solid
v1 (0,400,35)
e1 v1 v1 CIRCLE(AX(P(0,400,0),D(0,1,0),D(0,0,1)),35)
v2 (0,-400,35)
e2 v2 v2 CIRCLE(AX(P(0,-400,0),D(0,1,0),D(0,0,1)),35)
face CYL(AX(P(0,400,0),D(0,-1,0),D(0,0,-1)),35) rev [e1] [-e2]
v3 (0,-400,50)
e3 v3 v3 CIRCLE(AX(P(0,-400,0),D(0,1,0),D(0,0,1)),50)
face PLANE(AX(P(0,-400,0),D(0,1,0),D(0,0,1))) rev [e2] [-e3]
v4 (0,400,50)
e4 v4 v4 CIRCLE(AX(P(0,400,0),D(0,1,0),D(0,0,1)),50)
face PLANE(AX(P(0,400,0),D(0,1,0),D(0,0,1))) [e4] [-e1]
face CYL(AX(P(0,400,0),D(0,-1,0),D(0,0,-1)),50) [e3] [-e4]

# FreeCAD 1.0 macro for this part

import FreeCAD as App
import Part
import Sketcher
Q = App.Units.Quantity

doc = App.newDocument("Part")
params = doc.addObject("Spreadsheet::Sheet", "Params")
for row, (alias, value) in enumerate([
    ("sketch1_diameter", "100 mm"),
    ("sketch1_diameter2", "70 mm"),
    ("pad1_length", "800 mm"),
], start=1):
    params.set(f"A{row}", alias)
    params.set(f"B{row}", "=" + value)
    params.setAlias(f"B{row}", alias)

body = doc.addObject("PartDesign::Body", "Body")

# Sketch on XZ plane
sketch1 = body.newObject("Sketcher::SketchObject", "Sketch")
sketch1.AttachmentSupport = (doc.getObject("XZ_Plane"), [""])
sketch1.MapMode = "FlatFace"
sketch1.addGeometry([
    Part.Circle(App.Vector(0, 0, 0), App.Vector(0, 0, 1), 50),
    Part.Circle(App.Vector(0, 0, 0), App.Vector(0, 0, 1), 35),
], False)
sketch1.addConstraint([
    Sketcher.Constraint("Coincident", 0, 3, -1, 1),
    Sketcher.Constraint("Coincident", 1, 3, -1, 1),
    Sketcher.Constraint("Diameter", 0, Q("100 mm")),
    Sketcher.Constraint("Diameter", 1, Q("70 mm")),
])
sketch1.setExpression("Constraints[2]", "Params.sketch1_diameter")
sketch1.setExpression("Constraints[3]", "Params.sketch1_diameter2")
pad1 = body.newObject("PartDesign::Pad", "Pad")
pad1.Profile = sketch1
pad1.setExpression("Length", "Params.pad1_length")
pad1.Midplane = True

doc.recompute()
